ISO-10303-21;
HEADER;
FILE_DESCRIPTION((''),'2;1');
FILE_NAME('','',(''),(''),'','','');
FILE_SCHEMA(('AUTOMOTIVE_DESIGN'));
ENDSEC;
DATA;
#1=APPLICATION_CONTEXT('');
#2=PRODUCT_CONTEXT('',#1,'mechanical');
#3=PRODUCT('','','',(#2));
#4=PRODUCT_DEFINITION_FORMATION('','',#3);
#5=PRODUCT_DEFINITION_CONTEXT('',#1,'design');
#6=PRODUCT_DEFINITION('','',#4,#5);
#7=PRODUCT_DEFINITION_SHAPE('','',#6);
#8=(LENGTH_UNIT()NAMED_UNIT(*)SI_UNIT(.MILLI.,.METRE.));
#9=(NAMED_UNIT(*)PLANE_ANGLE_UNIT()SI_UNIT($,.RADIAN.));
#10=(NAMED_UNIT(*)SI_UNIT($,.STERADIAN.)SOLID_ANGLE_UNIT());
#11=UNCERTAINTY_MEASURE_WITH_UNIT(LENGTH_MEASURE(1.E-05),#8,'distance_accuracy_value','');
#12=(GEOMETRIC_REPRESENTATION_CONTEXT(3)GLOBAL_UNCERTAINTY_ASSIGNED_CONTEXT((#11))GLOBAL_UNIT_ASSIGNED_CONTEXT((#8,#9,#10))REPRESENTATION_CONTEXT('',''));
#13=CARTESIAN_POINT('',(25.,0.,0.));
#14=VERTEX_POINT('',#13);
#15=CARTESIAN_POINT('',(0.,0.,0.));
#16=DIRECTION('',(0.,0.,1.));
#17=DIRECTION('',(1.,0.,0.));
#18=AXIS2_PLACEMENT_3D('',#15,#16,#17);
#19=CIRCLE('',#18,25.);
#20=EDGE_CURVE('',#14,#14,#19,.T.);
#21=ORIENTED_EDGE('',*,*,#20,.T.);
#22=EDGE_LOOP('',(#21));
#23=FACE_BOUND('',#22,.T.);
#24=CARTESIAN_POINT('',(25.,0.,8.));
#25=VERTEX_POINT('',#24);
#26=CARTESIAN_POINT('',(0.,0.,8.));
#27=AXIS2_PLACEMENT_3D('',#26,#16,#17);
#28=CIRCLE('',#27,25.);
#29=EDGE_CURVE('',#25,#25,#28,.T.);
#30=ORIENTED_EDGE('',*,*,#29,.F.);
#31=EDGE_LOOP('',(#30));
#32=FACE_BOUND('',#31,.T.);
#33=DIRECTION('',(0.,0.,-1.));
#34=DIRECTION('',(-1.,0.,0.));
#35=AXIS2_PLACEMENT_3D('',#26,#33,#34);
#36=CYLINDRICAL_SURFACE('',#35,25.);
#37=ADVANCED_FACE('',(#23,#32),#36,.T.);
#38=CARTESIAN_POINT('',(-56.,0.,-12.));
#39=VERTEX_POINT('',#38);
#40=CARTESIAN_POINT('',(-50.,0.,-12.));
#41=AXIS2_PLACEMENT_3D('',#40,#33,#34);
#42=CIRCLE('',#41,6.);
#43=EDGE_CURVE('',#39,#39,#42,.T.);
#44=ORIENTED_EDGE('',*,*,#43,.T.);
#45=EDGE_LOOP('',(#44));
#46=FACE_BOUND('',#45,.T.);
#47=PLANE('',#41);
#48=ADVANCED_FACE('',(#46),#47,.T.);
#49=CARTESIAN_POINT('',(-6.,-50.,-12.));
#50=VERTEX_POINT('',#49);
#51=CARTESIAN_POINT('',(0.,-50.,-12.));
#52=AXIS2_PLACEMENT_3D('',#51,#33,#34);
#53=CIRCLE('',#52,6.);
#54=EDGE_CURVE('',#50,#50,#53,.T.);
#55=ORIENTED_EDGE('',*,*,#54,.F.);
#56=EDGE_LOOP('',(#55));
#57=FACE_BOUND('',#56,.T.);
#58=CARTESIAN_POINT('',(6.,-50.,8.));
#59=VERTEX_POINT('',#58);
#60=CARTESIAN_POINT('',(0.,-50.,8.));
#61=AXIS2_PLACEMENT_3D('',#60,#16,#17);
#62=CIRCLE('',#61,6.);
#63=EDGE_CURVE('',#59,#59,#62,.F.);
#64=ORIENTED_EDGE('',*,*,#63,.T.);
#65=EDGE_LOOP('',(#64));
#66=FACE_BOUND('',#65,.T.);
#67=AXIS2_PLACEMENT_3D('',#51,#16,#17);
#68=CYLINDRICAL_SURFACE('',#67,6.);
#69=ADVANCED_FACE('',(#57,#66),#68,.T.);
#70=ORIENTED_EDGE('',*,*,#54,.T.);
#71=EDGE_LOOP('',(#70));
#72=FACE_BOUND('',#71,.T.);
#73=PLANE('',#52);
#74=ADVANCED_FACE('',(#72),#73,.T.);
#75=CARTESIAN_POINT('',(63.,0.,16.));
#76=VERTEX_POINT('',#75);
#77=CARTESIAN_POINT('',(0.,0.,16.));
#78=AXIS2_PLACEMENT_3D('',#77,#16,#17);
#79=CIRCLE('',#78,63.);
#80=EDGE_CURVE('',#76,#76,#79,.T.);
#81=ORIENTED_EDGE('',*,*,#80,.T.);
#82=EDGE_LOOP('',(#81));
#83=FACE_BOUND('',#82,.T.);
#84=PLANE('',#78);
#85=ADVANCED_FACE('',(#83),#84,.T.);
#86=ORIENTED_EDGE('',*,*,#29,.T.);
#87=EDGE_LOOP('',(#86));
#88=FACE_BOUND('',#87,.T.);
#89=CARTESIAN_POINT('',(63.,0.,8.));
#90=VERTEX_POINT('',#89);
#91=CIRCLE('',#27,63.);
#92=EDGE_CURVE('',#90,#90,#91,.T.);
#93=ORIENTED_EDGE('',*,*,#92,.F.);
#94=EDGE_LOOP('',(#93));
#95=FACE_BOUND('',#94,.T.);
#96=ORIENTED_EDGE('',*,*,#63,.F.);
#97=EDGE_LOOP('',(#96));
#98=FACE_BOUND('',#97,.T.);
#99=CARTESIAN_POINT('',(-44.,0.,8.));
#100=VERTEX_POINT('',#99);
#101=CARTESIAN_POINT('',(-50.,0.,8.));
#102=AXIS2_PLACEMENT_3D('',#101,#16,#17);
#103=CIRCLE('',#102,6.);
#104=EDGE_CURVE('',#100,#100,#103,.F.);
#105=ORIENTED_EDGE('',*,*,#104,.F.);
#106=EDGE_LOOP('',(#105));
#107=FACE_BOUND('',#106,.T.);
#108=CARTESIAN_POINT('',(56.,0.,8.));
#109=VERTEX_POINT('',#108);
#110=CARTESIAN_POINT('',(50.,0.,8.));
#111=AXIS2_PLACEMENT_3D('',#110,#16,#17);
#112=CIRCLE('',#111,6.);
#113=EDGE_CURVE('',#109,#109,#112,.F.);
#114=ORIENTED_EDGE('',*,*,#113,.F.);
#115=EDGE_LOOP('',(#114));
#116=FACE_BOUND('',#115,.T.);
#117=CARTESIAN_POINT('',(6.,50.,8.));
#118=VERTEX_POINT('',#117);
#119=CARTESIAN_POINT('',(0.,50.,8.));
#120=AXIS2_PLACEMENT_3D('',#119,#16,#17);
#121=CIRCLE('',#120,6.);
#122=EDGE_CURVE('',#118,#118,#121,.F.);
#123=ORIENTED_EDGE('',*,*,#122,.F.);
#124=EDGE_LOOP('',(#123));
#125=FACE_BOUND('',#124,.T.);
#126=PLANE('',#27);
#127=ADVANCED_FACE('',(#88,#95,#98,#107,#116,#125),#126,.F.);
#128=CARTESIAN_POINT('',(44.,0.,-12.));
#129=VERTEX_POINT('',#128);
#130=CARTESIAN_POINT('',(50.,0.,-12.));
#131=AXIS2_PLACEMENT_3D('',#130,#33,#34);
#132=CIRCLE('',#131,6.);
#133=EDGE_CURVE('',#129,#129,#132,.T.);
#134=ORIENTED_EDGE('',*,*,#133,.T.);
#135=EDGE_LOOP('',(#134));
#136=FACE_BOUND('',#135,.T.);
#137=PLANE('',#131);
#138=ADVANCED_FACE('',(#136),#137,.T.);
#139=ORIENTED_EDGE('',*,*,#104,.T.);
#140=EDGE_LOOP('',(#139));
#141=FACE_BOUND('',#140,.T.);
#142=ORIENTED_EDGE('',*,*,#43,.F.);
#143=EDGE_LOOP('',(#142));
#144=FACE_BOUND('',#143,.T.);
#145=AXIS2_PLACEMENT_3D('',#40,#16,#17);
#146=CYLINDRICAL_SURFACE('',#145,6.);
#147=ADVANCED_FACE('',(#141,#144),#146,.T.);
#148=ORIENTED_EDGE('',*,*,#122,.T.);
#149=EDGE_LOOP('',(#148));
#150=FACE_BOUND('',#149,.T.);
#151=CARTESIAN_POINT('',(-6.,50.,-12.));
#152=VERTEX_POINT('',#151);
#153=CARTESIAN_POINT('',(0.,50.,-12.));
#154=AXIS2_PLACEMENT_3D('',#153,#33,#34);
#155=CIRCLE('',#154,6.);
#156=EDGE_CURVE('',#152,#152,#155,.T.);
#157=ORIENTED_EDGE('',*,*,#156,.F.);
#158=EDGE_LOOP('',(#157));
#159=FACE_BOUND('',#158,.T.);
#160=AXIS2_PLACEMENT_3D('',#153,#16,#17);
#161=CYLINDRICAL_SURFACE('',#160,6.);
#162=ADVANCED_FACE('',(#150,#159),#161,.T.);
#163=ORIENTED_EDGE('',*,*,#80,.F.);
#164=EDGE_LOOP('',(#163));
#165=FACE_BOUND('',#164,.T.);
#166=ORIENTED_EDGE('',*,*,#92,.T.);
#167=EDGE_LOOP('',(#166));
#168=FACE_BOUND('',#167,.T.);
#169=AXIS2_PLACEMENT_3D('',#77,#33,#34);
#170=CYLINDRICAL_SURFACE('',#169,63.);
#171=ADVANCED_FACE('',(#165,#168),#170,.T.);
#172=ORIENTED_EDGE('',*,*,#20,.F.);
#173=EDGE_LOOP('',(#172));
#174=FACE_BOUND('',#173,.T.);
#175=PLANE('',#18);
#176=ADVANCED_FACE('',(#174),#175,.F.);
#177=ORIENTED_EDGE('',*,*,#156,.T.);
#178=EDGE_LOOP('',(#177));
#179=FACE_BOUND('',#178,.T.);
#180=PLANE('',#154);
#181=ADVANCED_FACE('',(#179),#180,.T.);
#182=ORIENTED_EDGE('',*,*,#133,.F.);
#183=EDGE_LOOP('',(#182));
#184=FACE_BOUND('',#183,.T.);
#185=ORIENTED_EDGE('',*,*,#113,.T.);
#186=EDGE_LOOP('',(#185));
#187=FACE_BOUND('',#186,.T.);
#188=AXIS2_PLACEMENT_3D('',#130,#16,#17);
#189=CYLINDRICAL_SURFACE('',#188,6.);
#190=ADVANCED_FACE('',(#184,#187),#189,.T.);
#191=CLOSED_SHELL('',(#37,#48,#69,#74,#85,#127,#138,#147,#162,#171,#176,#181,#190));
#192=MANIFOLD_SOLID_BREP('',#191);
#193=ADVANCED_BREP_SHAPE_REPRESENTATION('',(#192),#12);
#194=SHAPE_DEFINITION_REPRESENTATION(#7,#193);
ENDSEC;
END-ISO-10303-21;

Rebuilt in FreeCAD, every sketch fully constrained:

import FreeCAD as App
import Part
import Sketcher
from FreeCAD import Vector
Q = App.Units.Quantity

doc = App.newDocument("Part")
body = doc.addObject("PartDesign::Body", "Body")

sketch1 = doc.addObject("Sketcher::SketchObject", "Sketch")
body.addObject(sketch1)
sketch1.AttachmentSupport = (doc.XY_Plane, [""])
sketch1.MapMode = "FlatFace"
sketch1.addGeometry(Part.Circle(Vector(0, 0, 0), Vector(0, 0, 1), 25), False)
sketch1.addConstraint(Sketcher.Constraint("Coincident", 0, 3, -1, 1))
sketch1.addConstraint(Sketcher.Constraint("Diameter", 0, Q("50 mm")))
pad1 = doc.addObject("PartDesign::Pad", "Pad")
body.addObject(pad1)
pad1.Profile = sketch1
pad1.Length = 8

sketch2 = doc.addObject("Sketcher::SketchObject", "Sketch001")
body.addObject(sketch2)
sketch2.AttachmentSupport = (doc.XY_Plane, [""])
sketch2.MapMode = "FlatFace"
sketch2.AttachmentOffset = App.Placement(Vector(0, 0, 8), App.Rotation())
sketch2.addGeometry(Part.Circle(Vector(0, 0, 0), Vector(0, 0, 1), 63), False)
sketch2.addConstraint(Sketcher.Constraint("Coincident", 0, 3, -1, 1))
sketch2.addConstraint(Sketcher.Constraint("Diameter", 0, Q("126 mm")))
pad2 = doc.addObject("PartDesign::Pad", "Pad001")
body.addObject(pad2)
pad2.Profile = sketch2
pad2.Length = 8

sketch3 = doc.addObject("Sketcher::SketchObject", "Sketch002")
body.addObject(sketch3)
sketch3.AttachmentSupport = (doc.XY_Plane, [""])
sketch3.MapMode = "FlatFace"
sketch3.AttachmentOffset = App.Placement(Vector(0, 0, 8), App.Rotation())
sketch3.addGeometry(Part.Circle(Vector(0, 50, 0), Vector(0, 0, 1), 6), False)
sketch3.addGeometry(Part.Circle(Vector(-50, 0, 0), Vector(0, 0, 1), 6), False)
sketch3.addGeometry(Part.Circle(Vector(0, -50, 0), Vector(0, 0, 1), 6), False)
sketch3.addGeometry(Part.Circle(Vector(50, 0, 0), Vector(0, 0, 1), 6), False)
sketch3.addConstraint(Sketcher.Constraint("Equal", 0, 1))
sketch3.addConstraint(Sketcher.Constraint("Equal", 1, 2))
sketch3.addConstraint(Sketcher.Constraint("Equal", 2, 3))
sketch3.addConstraint(Sketcher.Constraint("Symmetric", 0, 3, 2, 3, -1, 1))
sketch3.addConstraint(Sketcher.Constraint("Symmetric", 1, 3, 3, 3, -1, 1))
sketch3.addConstraint(Sketcher.Constraint("PointOnObject", 0, 3, -2))
sketch3.addConstraint(Sketcher.Constraint("PointOnObject", 1, 3, -1))
sketch3.addConstraint(Sketcher.Constraint("Diameter", 0, Q("12 mm")))
sketch3.addConstraint(Sketcher.Constraint("DistanceY", -1, 1, 0, 3, Q("50 mm")))
sketch3.addConstraint(Sketcher.Constraint("DistanceX", 1, 3, -1, 1, Q("50 mm")))
pad3 = doc.addObject("PartDesign::Pad", "Pad002")
body.addObject(pad3)
pad3.Profile = sketch3
pad3.Length = 20
pad3.Reversed = True

doc.recompute()
